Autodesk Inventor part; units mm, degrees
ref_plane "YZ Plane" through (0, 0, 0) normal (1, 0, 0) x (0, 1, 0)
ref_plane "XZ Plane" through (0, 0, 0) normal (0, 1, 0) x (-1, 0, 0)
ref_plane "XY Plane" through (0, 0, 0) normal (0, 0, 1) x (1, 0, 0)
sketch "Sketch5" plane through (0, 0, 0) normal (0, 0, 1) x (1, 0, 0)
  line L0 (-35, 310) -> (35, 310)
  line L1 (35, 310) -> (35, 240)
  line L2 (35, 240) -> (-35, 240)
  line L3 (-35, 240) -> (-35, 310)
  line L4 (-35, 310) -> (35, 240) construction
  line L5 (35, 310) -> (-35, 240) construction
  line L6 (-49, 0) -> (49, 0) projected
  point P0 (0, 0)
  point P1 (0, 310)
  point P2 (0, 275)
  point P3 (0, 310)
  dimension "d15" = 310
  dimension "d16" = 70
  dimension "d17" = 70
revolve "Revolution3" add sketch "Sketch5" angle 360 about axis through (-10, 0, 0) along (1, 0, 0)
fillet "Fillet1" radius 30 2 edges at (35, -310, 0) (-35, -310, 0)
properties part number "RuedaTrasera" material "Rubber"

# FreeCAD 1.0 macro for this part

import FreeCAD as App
import Part
import Sketcher
from FreeCAD import Vector
Q = App.Units.Quantity


def edges_at(feature, points):
    """Names of the edges that pass closest to the given points."""
    edges = feature.Shape.Edges
    near = lambda p: min(range(len(edges)), key=lambda i: edges[i].distToShape(Part.Vertex(*p))[0])
    return sorted({f"Edge{near(p) + 1}" for p in points})

doc = App.newDocument("Part")
body = doc.addObject("PartDesign::Body", "Body")

sketch1 = doc.addObject("Sketcher::SketchObject", "Sketch")
body.addObject(sketch1)
sketch1.AttachmentSupport = (doc.XY_Plane, [""])
sketch1.MapMode = "FlatFace"
sketch1.addGeometry(Part.LineSegment(Vector(35, 310, 0), Vector(-35, 310, 0)), False)
sketch1.addGeometry(Part.LineSegment(Vector(-35, 310, 0), Vector(-35, 240, 0)), False)
sketch1.addGeometry(Part.LineSegment(Vector(-35, 240, 0), Vector(35, 240, 0)), False)
sketch1.addGeometry(Part.LineSegment(Vector(35, 240, 0), Vector(35, 310, 0)), False)
sketch1.addConstraint(Sketcher.Constraint("Coincident", 0, 2, 1, 1))
sketch1.addConstraint(Sketcher.Constraint("Coincident", 1, 2, 2, 1))
sketch1.addConstraint(Sketcher.Constraint("Coincident", 2, 2, 3, 1))
sketch1.addConstraint(Sketcher.Constraint("Coincident", 3, 2, 0, 1))
sketch1.addConstraint(Sketcher.Constraint("Horizontal", 0))
sketch1.addConstraint(Sketcher.Constraint("Vertical", 1))
sketch1.addConstraint(Sketcher.Constraint("Horizontal", 2))
sketch1.addConstraint(Sketcher.Constraint("Vertical", 3))
sketch1.addConstraint(Sketcher.Constraint("Equal", 2, 1))
sketch1.addConstraint(Sketcher.Constraint("DistanceX", 0, 2, 0, 1, Q("70 mm")))
sketch1.addConstraint(Sketcher.Constraint("DistanceY", -1, 1, 0, 2, Q("310 mm")))
sketch1.addConstraint(Sketcher.Constraint("DistanceX", 0, 2, -1, 1, Q("35 mm")))
revolution = doc.addObject("PartDesign::Revolution", "Revolution")
body.addObject(revolution)
revolution.Profile = sketch1
revolution.ReferenceAxis = (sketch1, ["H_Axis"])
revolution.Angle = 360
doc.recompute()

fillet = doc.addObject("PartDesign::Fillet", "Fillet")
body.addObject(fillet)
fillet.Base = (revolution, edges_at(revolution, [(35, -310, 0), (-35, -310, 0)]))
fillet.Radius = 30

doc.recompute()
